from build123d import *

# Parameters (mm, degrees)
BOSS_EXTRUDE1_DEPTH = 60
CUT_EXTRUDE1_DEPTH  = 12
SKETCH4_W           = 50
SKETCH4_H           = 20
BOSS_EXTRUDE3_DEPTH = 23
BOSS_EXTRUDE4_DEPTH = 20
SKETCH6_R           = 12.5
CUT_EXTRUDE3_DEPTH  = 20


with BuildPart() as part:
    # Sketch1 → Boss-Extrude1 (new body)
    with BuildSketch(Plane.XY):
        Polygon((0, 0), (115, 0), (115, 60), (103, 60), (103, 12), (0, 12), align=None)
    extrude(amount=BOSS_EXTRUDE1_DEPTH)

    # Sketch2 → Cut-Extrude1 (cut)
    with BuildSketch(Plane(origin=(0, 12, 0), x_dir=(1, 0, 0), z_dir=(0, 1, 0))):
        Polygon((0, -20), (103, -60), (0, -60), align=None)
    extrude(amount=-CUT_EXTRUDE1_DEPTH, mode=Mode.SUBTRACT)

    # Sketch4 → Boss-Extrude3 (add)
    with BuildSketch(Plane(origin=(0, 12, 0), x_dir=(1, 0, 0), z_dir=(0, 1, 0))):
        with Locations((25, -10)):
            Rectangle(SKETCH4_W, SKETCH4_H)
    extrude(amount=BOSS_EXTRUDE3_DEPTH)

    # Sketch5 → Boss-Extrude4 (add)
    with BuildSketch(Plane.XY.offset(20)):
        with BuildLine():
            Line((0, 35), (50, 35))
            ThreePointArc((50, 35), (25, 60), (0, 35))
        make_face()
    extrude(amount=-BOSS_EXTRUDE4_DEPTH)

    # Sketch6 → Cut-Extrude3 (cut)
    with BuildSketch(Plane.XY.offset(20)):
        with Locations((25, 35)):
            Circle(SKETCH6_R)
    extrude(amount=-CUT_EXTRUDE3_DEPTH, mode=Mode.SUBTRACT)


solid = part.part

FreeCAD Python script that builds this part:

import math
import FreeCAD as App
import Part
import Sketcher

V = App.Vector


def add_polygon(sketch, points):
    """Adds a closed chain of lines whose ends are joined by coincident constraints."""
    first, n = sketch.GeometryCount, len(points)
    for a, b in zip(points, points[1:] + points[:1]):
        sketch.addGeometry(Part.LineSegment(App.Vector(*a, 0), App.Vector(*b, 0)), False)
    for i in range(n):
        sketch.addConstraint(Sketcher.Constraint("Coincident", first + i, 2, first + (i + 1) % n, 1))

doc = App.newDocument("Part")
params = doc.addObject("Spreadsheet::Sheet", "Params")
for row, (alias, value) in enumerate([
    ("sketch1_width", "115 mm"),
    ("sketch1_width2", "12 mm"),
    ("sketch1_height", "60 mm"),
    ("pad1_length", "60 mm"),
    ("sketch2_width", "103 mm"),
    ("sketch2_height", "40 mm"),
    ("pocket1_length", "12 mm"),
    ("sketch3_width", "50 mm"),
    ("sketch3_height", "20 mm"),
    ("pad2_length", "23 mm"),
    ("sketch4_radius", "25 mm"),
    ("pad3_length", "20 mm"),
    ("sketch5_diameter", "25 mm"),
    ("pocket2_length", "20 mm"),
], start=1):
    params.set(f"A{row}", alias)
    params.set(f"B{row}", "=" + value)
    params.setAlias(f"B{row}", alias)

body = doc.addObject("PartDesign::Body", "Body")

sketch1 = body.newObject("Sketcher::SketchObject", "Sketch")
sketch1.AttachmentSupport = (doc.getObject("XY_Plane"), [""])
sketch1.MapMode = "FlatFace"
add_polygon(sketch1, [(0, 0), (115, 0), (115, 60), (103, 60), (103, 12), (0, 12)])
sketch1.addConstraint([
    Sketcher.Constraint("Horizontal", 0),
    Sketcher.Constraint("Vertical", 1),
    Sketcher.Constraint("Horizontal", 2),
    Sketcher.Constraint("Vertical", 3),
    Sketcher.Constraint("Horizontal", 4),
    Sketcher.Constraint("Vertical", 5),
    Sketcher.Constraint("Coincident", 5, 2, -1, 1),
    Sketcher.Constraint("Equal", 2, 5),
    Sketcher.Constraint("DistanceX", 0, 1, 0, 2, 115.0),
    Sketcher.Constraint("DistanceX", 2, 2, 2, 1, 12.0),
    Sketcher.Constraint("DistanceY", 1, 1, 1, 2, 60.0),
])
sketch1.setExpression("Constraints[14]", "Params.sketch1_width")
sketch1.setExpression("Constraints[15]", "Params.sketch1_width2")
sketch1.setExpression("Constraints[16]", "Params.sketch1_height")
pad1 = body.newObject("PartDesign::Pad", "Pad")
pad1.Profile = sketch1
pad1.setExpression("Length", "Params.pad1_length")

sketch2 = body.newObject("Sketcher::SketchObject", "Sketch001")
sketch2.AttachmentSupport = (doc.getObject("XZ_Plane"), [""])
sketch2.MapMode = "FlatFace"
sketch2.AttachmentOffset = App.Placement(V(0, 0, -12), App.Rotation())
add_polygon(sketch2, [(103, 60), (0, 20), (0, 60)])
sketch2.addConstraint([
    Sketcher.Constraint("Vertical", 1),
    Sketcher.Constraint("Horizontal", 2),
    Sketcher.Constraint("PointOnObject", 0, 2, -2),
    Sketcher.Constraint("DistanceX", 2, 1, 2, 2, 103.0),
    Sketcher.Constraint("DistanceY", 1, 1, 1, 2, 40.0),
    Sketcher.Constraint("DistanceY", -1, 1, 0, 2, 20.0),
])
sketch2.setExpression("Constraints[6]", "Params.sketch2_width")
sketch2.setExpression("Constraints[7]", "Params.sketch2_height")
pocket1 = body.newObject("PartDesign::Pocket", "Pocket")
pocket1.Profile = sketch2
pocket1.setExpression("Length", "Params.pocket1_length")
pocket1.Reversed = True

sketch3 = body.newObject("Sketcher::SketchObject", "Sketch002")
sketch3.AttachmentSupport = (doc.getObject("XZ_Plane"), [""])
sketch3.MapMode = "FlatFace"
sketch3.AttachmentOffset = App.Placement(V(0, 0, -12), App.Rotation())
add_polygon(sketch3, [(0, 0), (0, 20), (50, 20), (50, 0)])
sketch3.addConstraint([
    Sketcher.Constraint("Vertical", 0),
    Sketcher.Constraint("Horizontal", 1),
    Sketcher.Constraint("Vertical", 2),
    Sketcher.Constraint("Horizontal", 3),
    Sketcher.Constraint("Coincident", 3, 2, -1, 1),
    Sketcher.Constraint("DistanceX", 1, 1, 1, 2, 50.0),
    Sketcher.Constraint("DistanceY", 0, 1, 0, 2, 20.0),
])
sketch3.setExpression("Constraints[9]", "Params.sketch3_width")
sketch3.setExpression("Constraints[10]", "Params.sketch3_height")
pad2 = body.newObject("PartDesign::Pad", "Pad001")
pad2.Profile = sketch3
pad2.setExpression("Length", "Params.pad2_length")
pad2.Reversed = True

sketch4 = body.newObject("Sketcher::SketchObject", "Sketch003")
sketch4.AttachmentSupport = (doc.getObject("XY_Plane"), [""])
sketch4.MapMode = "FlatFace"
sketch4.AttachmentOffset = App.Placement(V(0, 0, 20), App.Rotation())
sketch4.addGeometry([
    Part.LineSegment(V(0, 35, 0), V(50, 35, 0)),
    Part.ArcOfCircle(Part.Circle(V(25, 35, 0), V(0, 0, 1), 25), math.radians(0), math.radians(180)),
], False)
sketch4.addConstraint([
    Sketcher.Constraint("Coincident", 0, 1, 1, 2),
    Sketcher.Constraint("Coincident", 1, 1, 0, 2),
    Sketcher.Constraint("Horizontal", 0),
    Sketcher.Constraint("PointOnObject", 0, 1, -2),
    Sketcher.Constraint("Horizontal", 1, 3, 0, 1),
    Sketcher.Constraint("Radius", 1, 25.0),
    Sketcher.Constraint("DistanceY", -1, 1, 1, 3, 35.0),
])
sketch4.setExpression("Constraints[5]", "Params.sketch4_radius")
pad3 = body.newObject("PartDesign::Pad", "Pad002")
pad3.Profile = sketch4
pad3.setExpression("Length", "Params.pad3_length")
pad3.Reversed = True

sketch5 = body.newObject("Sketcher::SketchObject", "Sketch004")
sketch5.AttachmentSupport = (doc.getObject("XY_Plane"), [""])
sketch5.MapMode = "FlatFace"
sketch5.AttachmentOffset = App.Placement(V(0, 0, 20), App.Rotation())
sketch5.addGeometry(Part.Circle(V(25, 35, 0), V(0, 0, 1), 12), False)
sketch5.addConstraint([
    Sketcher.Constraint("Diameter", 0, 25.0),
    Sketcher.Constraint("DistanceX", -1, 1, 0, 3, 25.0),
    Sketcher.Constraint("DistanceY", -1, 1, 0, 3, 35.0),
])
sketch5.setExpression("Constraints[0]", "Params.sketch5_diameter")
pocket2 = body.newObject("PartDesign::Pocket", "Pocket001")
pocket2.Profile = sketch5
pocket2.setExpression("Length", "Params.pocket2_length")

doc.recompute()
